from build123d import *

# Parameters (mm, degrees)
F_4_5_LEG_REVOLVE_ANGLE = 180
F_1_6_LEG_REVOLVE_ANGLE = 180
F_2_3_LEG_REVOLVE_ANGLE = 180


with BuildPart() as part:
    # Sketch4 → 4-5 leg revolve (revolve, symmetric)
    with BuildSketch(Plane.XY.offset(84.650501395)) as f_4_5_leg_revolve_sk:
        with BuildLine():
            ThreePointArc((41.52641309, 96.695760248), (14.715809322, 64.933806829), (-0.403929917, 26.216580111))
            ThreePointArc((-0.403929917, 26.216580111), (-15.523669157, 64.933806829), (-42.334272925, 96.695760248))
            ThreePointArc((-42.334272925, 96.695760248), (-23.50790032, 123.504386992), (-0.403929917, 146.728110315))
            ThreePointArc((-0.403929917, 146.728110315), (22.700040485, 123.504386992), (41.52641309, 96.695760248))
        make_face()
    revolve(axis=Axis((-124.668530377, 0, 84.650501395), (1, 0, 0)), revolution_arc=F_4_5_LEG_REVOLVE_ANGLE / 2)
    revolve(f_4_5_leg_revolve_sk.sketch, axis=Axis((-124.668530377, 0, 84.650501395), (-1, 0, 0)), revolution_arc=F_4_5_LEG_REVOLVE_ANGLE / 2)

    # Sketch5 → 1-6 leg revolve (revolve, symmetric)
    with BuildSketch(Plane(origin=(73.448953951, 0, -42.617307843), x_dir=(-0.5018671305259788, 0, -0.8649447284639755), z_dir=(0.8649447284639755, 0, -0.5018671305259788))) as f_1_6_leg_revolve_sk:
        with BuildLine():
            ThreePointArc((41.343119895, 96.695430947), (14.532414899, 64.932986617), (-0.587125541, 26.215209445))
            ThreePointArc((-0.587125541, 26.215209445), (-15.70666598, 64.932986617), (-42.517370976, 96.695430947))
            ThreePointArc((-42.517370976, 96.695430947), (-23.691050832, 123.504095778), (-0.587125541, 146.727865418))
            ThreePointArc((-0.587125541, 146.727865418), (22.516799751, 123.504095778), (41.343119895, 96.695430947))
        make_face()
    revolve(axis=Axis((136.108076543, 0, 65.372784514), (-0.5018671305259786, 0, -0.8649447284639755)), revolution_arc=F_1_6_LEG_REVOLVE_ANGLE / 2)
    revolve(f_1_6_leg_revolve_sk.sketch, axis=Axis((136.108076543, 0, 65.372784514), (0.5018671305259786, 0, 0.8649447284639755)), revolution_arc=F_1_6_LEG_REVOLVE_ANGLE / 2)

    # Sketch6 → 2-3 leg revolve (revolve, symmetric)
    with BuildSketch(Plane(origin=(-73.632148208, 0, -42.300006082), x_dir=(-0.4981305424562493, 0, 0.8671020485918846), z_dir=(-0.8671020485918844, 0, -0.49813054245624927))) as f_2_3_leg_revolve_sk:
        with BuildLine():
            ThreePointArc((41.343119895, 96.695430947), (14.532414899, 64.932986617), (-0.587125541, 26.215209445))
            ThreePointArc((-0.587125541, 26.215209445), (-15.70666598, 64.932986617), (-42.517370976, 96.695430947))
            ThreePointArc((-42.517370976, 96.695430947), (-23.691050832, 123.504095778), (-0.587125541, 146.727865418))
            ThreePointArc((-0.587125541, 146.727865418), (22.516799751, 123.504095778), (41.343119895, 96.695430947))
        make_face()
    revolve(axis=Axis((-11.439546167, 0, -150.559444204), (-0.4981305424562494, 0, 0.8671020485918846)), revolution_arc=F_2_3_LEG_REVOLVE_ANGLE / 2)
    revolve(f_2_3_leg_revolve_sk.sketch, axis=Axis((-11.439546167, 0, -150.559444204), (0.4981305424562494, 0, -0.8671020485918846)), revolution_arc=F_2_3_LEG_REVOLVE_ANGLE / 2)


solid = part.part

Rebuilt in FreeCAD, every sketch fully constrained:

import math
import FreeCAD as App
import Part
import Sketcher

V = App.Vector
Q = App.Units.Quantity

doc = App.newDocument("Part")
body = doc.addObject("PartDesign::Body", "Body")
body.AllowCompound = True

# Sketch on XY plane
sketch1 = body.newObject("Sketcher::SketchObject", "Sketch")
sketch1.AttachmentSupport = (doc.getObject("XY_Plane"), [""])
sketch1.MapMode = "FlatFace"
sketch1.AttachmentOffset = App.Placement(V(0, 0, 84.650501), App.Rotation())
sketch1.addGeometry(Part.ArcOfCircle(Part.Circle(V(124, 0, 0), V(0, 0, 1), 127), math.radians(130), math.radians(168)), False)
sketch1.addGeometry(Part.ArcOfCircle(Part.Circle(V(-125, 0, 0), V(0, 0, 1), 192), math.radians(30.19), math.radians(49.74)), False)
sketch1.addGeometry(Part.ArcOfCircle(Part.Circle(V(124, 0, 0), V(0, 0, 1), 192), math.radians(130.26), math.radians(149.81)), False)
sketch1.addGeometry(Part.ArcOfCircle(Part.Circle(V(-125, 0, 0), V(0, 0, 1), 127), math.radians(12), math.radians(50)), False)
sketch1.addConstraint(Sketcher.Constraint("Coincident", 0, 1, 1, 1))
sketch1.addConstraint(Sketcher.Constraint("Coincident", 1, 2, 2, 1))
sketch1.addConstraint(Sketcher.Constraint("Coincident", 2, 2, 3, 2))
sketch1.addConstraint(Sketcher.Constraint("Coincident", 3, 1, 0, 2))
sketch1.addConstraint(Sketcher.Constraint("Coincident", 2, 3, 0, 3))
sketch1.addConstraint(Sketcher.Constraint("Coincident", 3, 3, 1, 3))
sketch1.addConstraint(Sketcher.Constraint("Equal", 1, 2))
sketch1.addConstraint(Sketcher.Constraint("Equal", 0, 3))
sketch1.addConstraint(Sketcher.Constraint("PointOnObject", 0, 3, -1))
sketch1.addConstraint(Sketcher.Constraint("PointOnObject", 1, 3, -1))
sketch1.addConstraint(Sketcher.Constraint("Radius", 0, Q("5 in")))
sketch1.addConstraint(Sketcher.Constraint("Radius", 1, Q("7.57 in")))
sketch1.addConstraint(Sketcher.Constraint("DistanceX", 1, 3, 0, 3, 248.529201))
sketch1.addConstraint(Sketcher.Constraint("DistanceX", -1, 1, 0, 3, 123.860671))
revolution = body.newObject("PartDesign::Revolution", "Revolution")
revolution.Profile = sketch1
revolution.ReferenceAxis = (sketch1, ["H_Axis"])
revolution.Angle = 90

# Sketch on XY plane
sketch2 = body.newObject("Sketcher::SketchObject", "Sketch001")
sketch2.AttachmentSupport = (doc.getObject("XY_Plane"), [""])
sketch2.MapMode = "FlatFace"
sketch2.AttachmentOffset = App.Placement(V(0, 0, 84.650501), App.Rotation())
sketch2.addGeometry(Part.ArcOfCircle(Part.Circle(V(124, 0, 0), V(0, 0, 1), 127), math.radians(130), math.radians(168)), False)
sketch2.addGeometry(Part.ArcOfCircle(Part.Circle(V(-125, 0, 0), V(0, 0, 1), 192), math.radians(30.19), math.radians(49.74)), False)
sketch2.addGeometry(Part.ArcOfCircle(Part.Circle(V(124, 0, 0), V(0, 0, 1), 192), math.radians(130.26), math.radians(149.81)), False)
sketch2.addGeometry(Part.ArcOfCircle(Part.Circle(V(-125, 0, 0), V(0, 0, 1), 127), math.radians(12), math.radians(50)), False)
sketch2.addConstraint(Sketcher.Constraint("Coincident", 0, 1, 1, 1))
sketch2.addConstraint(Sketcher.Constraint("Coincident", 1, 2, 2, 1))
sketch2.addConstraint(Sketcher.Constraint("Coincident", 2, 2, 3, 2))
sketch2.addConstraint(Sketcher.Constraint("Coincident", 3, 1, 0, 2))
sketch2.addConstraint(Sketcher.Constraint("Coincident", 2, 3, 0, 3))
sketch2.addConstraint(Sketcher.Constraint("Coincident", 3, 3, 1, 3))
sketch2.addConstraint(Sketcher.Constraint("Equal", 1, 2))
sketch2.addConstraint(Sketcher.Constraint("Equal", 0, 3))
sketch2.addConstraint(Sketcher.Constraint("PointOnObject", 0, 3, -1))
sketch2.addConstraint(Sketcher.Constraint("PointOnObject", 1, 3, -1))
sketch2.addConstraint(Sketcher.Constraint("Radius", 0, Q("5 in")))
sketch2.addConstraint(Sketcher.Constraint("Radius", 1, Q("7.57 in")))
sketch2.addConstraint(Sketcher.Constraint("DistanceX", 1, 3, 0, 3, 248.529201))
sketch2.addConstraint(Sketcher.Constraint("DistanceX", -1, 1, 0, 3, 123.860671))
revolution2 = body.newObject("PartDesign::Revolution", "Revolution001")
revolution2.Profile = sketch2
revolution2.ReferenceAxis = (sketch2, ["H_Axis"])
revolution2.Angle = 90
revolution2.Reversed = True

# Sketch on an angled plane
sketch3 = body.newObject("Sketcher::SketchObject", "Sketch002")
sketch3.Placement = App.Placement(V(73.448954, 0, -42.617308), App.Rotation(V(-0.501867131, 0, -0.864944728), V(0, 1, 0), V(0.864944728, 0, -0.501867131), "ZXY"))
sketch3.addGeometry(Part.ArcOfCircle(Part.Circle(V(124, 0, 0), V(0, 0, 1), 127), math.radians(130), math.radians(168)), False)
sketch3.addGeometry(Part.ArcOfCircle(Part.Circle(V(-125, 0, 0), V(0, 0, 1), 192), math.radians(30.19), math.radians(49.74)), False)
sketch3.addGeometry(Part.ArcOfCircle(Part.Circle(V(124, 0, 0), V(0, 0, 1), 192), math.radians(130.26), math.radians(149.81)), False)
sketch3.addGeometry(Part.ArcOfCircle(Part.Circle(V(-125, 0, 0), V(0, 0, 1), 127), math.radians(12), math.radians(50)), False)
sketch3.addConstraint(Sketcher.Constraint("Coincident", 0, 1, 1, 1))
sketch3.addConstraint(Sketcher.Constraint("Coincident", 1, 2, 2, 1))
sketch3.addConstraint(Sketcher.Constraint("Coincident", 2, 2, 3, 2))
sketch3.addConstraint(Sketcher.Constraint("Coincident", 3, 1, 0, 2))
sketch3.addConstraint(Sketcher.Constraint("Coincident", 2, 3, 0, 3))
sketch3.addConstraint(Sketcher.Constraint("Coincident", 3, 3, 1, 3))
sketch3.addConstraint(Sketcher.Constraint("Equal", 1, 2))
sketch3.addConstraint(Sketcher.Constraint("Equal", 0, 3))
sketch3.addConstraint(Sketcher.Constraint("PointOnObject", 0, 3, -1))
sketch3.addConstraint(Sketcher.Constraint("PointOnObject", 1, 3, -1))
sketch3.addConstraint(Sketcher.Constraint("Radius", 0, Q("5 in")))
sketch3.addConstraint(Sketcher.Constraint("Radius", 1, Q("7.57 in")))
sketch3.addConstraint(Sketcher.Constraint("DistanceX", -1, 1, 0, 1, 41.34312))
sketch3.addConstraint(Sketcher.Constraint("DistanceY", -1, 1, 0, 1, 96.695431))
revolution3 = body.newObject("PartDesign::Revolution", "Revolution002")
revolution3.Profile = sketch3
revolution3.ReferenceAxis = (sketch3, ["H_Axis"])
revolution3.Angle = 90

# Sketch on an angled plane
sketch4 = body.newObject("Sketcher::SketchObject", "Sketch003")
sketch4.Placement = App.Placement(V(73.448954, 0, -42.617308), App.Rotation(V(-0.501867131, 0, -0.864944728), V(0, 1, 0), V(0.864944728, 0, -0.501867131), "ZXY"))
sketch4.addGeometry(Part.ArcOfCircle(Part.Circle(V(124, 0, 0), V(0, 0, 1), 127), math.radians(130), math.radians(168)), False)
sketch4.addGeometry(Part.ArcOfCircle(Part.Circle(V(-125, 0, 0), V(0, 0, 1), 192), math.radians(30.19), math.radians(49.74)), False)
sketch4.addGeometry(Part.ArcOfCircle(Part.Circle(V(124, 0, 0), V(0, 0, 1), 192), math.radians(130.26), math.radians(149.81)), False)
sketch4.addGeometry(Part.ArcOfCircle(Part.Circle(V(-125, 0, 0), V(0, 0, 1), 127), math.radians(12), math.radians(50)), False)
sketch4.addConstraint(Sketcher.Constraint("Coincident", 0, 1, 1, 1))
sketch4.addConstraint(Sketcher.Constraint("Coincident", 1, 2, 2, 1))
sketch4.addConstraint(Sketcher.Constraint("Coincident", 2, 2, 3, 2))
sketch4.addConstraint(Sketcher.Constraint("Coincident", 3, 1, 0, 2))
sketch4.addConstraint(Sketcher.Constraint("Coincident", 2, 3, 0, 3))
sketch4.addConstraint(Sketcher.Constraint("Coincident", 3, 3, 1, 3))
sketch4.addConstraint(Sketcher.Constraint("Equal", 1, 2))
sketch4.addConstraint(Sketcher.Constraint("Equal", 0, 3))
sketch4.addConstraint(Sketcher.Constraint("PointOnObject", 0, 3, -1))
sketch4.addConstraint(Sketcher.Constraint("PointOnObject", 1, 3, -1))
sketch4.addConstraint(Sketcher.Constraint("Radius", 0, Q("5 in")))
sketch4.addConstraint(Sketcher.Constraint("Radius", 1, Q("7.57 in")))
sketch4.addConstraint(Sketcher.Constraint("DistanceX", -1, 1, 0, 1, 41.34312))
sketch4.addConstraint(Sketcher.Constraint("DistanceY", -1, 1, 0, 1, 96.695431))
revolution4 = body.newObject("PartDesign::Revolution", "Revolution003")
revolution4.Profile = sketch4
revolution4.ReferenceAxis = (sketch4, ["H_Axis"])
revolution4.Angle = 90
revolution4.Reversed = True

# Sketch on an angled plane
sketch5 = body.newObject("Sketcher::SketchObject", "Sketch004")
sketch5.Placement = App.Placement(V(-73.632148, 0, -42.300006), App.Rotation(V(-0.498130542, 0, 0.867102049), V(0, 1, 0), V(-0.867102049, 0, -0.498130542), "ZXY"))
sketch5.addGeometry(Part.ArcOfCircle(Part.Circle(V(124, 0, 0), V(0, 0, 1), 127), math.radians(130), math.radians(168)), False)
sketch5.addGeometry(Part.ArcOfCircle(Part.Circle(V(-125, 0, 0), V(0, 0, 1), 192), math.radians(30.19), math.radians(49.74)), False)
sketch5.addGeometry(Part.ArcOfCircle(Part.Circle(V(124, 0, 0), V(0, 0, 1), 192), math.radians(130.26), math.radians(149.81)), False)
sketch5.addGeometry(Part.ArcOfCircle(Part.Circle(V(-125, 0, 0), V(0, 0, 1), 127), math.radians(12), math.radians(50)), False)
sketch5.addConstraint(Sketcher.Constraint("Coincident", 0, 1, 1, 1))
sketch5.addConstraint(Sketcher.Constraint("Coincident", 1, 2, 2, 1))
sketch5.addConstraint(Sketcher.Constraint("Coincident", 2, 2, 3, 2))
sketch5.addConstraint(Sketcher.Constraint("Coincident", 3, 1, 0, 2))
sketch5.addConstraint(Sketcher.Constraint("Coincident", 2, 3, 0, 3))
sketch5.addConstraint(Sketcher.Constraint("Coincident", 3, 3, 1, 3))
sketch5.addConstraint(Sketcher.Constraint("Equal", 1, 2))
sketch5.addConstraint(Sketcher.Constraint("Equal", 0, 3))
sketch5.addConstraint(Sketcher.Constraint("PointOnObject", 0, 3, -1))
sketch5.addConstraint(Sketcher.Constraint("PointOnObject", 1, 3, -1))
sketch5.addConstraint(Sketcher.Constraint("Radius", 0, Q("5 in")))
sketch5.addConstraint(Sketcher.Constraint("Radius", 1, Q("7.57 in")))
sketch5.addConstraint(Sketcher.Constraint("DistanceX", -1, 1, 0, 1, 41.34312))
sketch5.addConstraint(Sketcher.Constraint("DistanceY", -1, 1, 0, 1, 96.695431))
revolution5 = body.newObject("PartDesign::Revolution", "Revolution004")
revolution5.Profile = sketch5
revolution5.ReferenceAxis = (sketch5, ["H_Axis"])
revolution5.Angle = 90

# Sketch on an angled plane
sketch6 = body.newObject("Sketcher::SketchObject", "Sketch005")
sketch6.Placement = App.Placement(V(-73.632148, 0, -42.300006), App.Rotation(V(-0.498130542, 0, 0.867102049), V(0, 1, 0), V(-0.867102049, 0, -0.498130542), "ZXY"))
sketch6.addGeometry(Part.ArcOfCircle(Part.Circle(V(124, 0, 0), V(0, 0, 1), 127), math.radians(130), math.radians(168)), False)
sketch6.addGeometry(Part.ArcOfCircle(Part.Circle(V(-125, 0, 0), V(0, 0, 1), 192), math.radians(30.19), math.radians(49.74)), False)
sketch6.addGeometry(Part.ArcOfCircle(Part.Circle(V(124, 0, 0), V(0, 0, 1), 192), math.radians(130.26), math.radians(149.81)), False)
sketch6.addGeometry(Part.ArcOfCircle(Part.Circle(V(-125, 0, 0), V(0, 0, 1), 127), math.radians(12), math.radians(50)), False)
sketch6.addConstraint(Sketcher.Constraint("Coincident", 0, 1, 1, 1))
sketch6.addConstraint(Sketcher.Constraint("Coincident", 1, 2, 2, 1))
sketch6.addConstraint(Sketcher.Constraint("Coincident", 2, 2, 3, 2))
sketch6.addConstraint(Sketcher.Constraint("Coincident", 3, 1, 0, 2))
sketch6.addConstraint(Sketcher.Constraint("Coincident", 2, 3, 0, 3))
sketch6.addConstraint(Sketcher.Constraint("Coincident", 3, 3, 1, 3))
sketch6.addConstraint(Sketcher.Constraint("Equal", 1, 2))
sketch6.addConstraint(Sketcher.Constraint("Equal", 0, 3))
sketch6.addConstraint(Sketcher.Constraint("PointOnObject", 0, 3, -1))
sketch6.addConstraint(Sketcher.Constraint("PointOnObject", 1, 3, -1))
sketch6.addConstraint(Sketcher.Constraint("Radius", 0, Q("5 in")))
sketch6.addConstraint(Sketcher.Constraint("Radius", 1, Q("7.57 in")))
sketch6.addConstraint(Sketcher.Constraint("DistanceX", -1, 1, 0, 1, 41.34312))
sketch6.addConstraint(Sketcher.Constraint("DistanceY", -1, 1, 0, 1, 96.695431))
revolution6 = body.newObject("PartDesign::Revolution", "Revolution005")
revolution6.Profile = sketch6
revolution6.ReferenceAxis = (sketch6, ["H_Axis"])
revolution6.Angle = 90
revolution6.Reversed = True

doc.recompute()
